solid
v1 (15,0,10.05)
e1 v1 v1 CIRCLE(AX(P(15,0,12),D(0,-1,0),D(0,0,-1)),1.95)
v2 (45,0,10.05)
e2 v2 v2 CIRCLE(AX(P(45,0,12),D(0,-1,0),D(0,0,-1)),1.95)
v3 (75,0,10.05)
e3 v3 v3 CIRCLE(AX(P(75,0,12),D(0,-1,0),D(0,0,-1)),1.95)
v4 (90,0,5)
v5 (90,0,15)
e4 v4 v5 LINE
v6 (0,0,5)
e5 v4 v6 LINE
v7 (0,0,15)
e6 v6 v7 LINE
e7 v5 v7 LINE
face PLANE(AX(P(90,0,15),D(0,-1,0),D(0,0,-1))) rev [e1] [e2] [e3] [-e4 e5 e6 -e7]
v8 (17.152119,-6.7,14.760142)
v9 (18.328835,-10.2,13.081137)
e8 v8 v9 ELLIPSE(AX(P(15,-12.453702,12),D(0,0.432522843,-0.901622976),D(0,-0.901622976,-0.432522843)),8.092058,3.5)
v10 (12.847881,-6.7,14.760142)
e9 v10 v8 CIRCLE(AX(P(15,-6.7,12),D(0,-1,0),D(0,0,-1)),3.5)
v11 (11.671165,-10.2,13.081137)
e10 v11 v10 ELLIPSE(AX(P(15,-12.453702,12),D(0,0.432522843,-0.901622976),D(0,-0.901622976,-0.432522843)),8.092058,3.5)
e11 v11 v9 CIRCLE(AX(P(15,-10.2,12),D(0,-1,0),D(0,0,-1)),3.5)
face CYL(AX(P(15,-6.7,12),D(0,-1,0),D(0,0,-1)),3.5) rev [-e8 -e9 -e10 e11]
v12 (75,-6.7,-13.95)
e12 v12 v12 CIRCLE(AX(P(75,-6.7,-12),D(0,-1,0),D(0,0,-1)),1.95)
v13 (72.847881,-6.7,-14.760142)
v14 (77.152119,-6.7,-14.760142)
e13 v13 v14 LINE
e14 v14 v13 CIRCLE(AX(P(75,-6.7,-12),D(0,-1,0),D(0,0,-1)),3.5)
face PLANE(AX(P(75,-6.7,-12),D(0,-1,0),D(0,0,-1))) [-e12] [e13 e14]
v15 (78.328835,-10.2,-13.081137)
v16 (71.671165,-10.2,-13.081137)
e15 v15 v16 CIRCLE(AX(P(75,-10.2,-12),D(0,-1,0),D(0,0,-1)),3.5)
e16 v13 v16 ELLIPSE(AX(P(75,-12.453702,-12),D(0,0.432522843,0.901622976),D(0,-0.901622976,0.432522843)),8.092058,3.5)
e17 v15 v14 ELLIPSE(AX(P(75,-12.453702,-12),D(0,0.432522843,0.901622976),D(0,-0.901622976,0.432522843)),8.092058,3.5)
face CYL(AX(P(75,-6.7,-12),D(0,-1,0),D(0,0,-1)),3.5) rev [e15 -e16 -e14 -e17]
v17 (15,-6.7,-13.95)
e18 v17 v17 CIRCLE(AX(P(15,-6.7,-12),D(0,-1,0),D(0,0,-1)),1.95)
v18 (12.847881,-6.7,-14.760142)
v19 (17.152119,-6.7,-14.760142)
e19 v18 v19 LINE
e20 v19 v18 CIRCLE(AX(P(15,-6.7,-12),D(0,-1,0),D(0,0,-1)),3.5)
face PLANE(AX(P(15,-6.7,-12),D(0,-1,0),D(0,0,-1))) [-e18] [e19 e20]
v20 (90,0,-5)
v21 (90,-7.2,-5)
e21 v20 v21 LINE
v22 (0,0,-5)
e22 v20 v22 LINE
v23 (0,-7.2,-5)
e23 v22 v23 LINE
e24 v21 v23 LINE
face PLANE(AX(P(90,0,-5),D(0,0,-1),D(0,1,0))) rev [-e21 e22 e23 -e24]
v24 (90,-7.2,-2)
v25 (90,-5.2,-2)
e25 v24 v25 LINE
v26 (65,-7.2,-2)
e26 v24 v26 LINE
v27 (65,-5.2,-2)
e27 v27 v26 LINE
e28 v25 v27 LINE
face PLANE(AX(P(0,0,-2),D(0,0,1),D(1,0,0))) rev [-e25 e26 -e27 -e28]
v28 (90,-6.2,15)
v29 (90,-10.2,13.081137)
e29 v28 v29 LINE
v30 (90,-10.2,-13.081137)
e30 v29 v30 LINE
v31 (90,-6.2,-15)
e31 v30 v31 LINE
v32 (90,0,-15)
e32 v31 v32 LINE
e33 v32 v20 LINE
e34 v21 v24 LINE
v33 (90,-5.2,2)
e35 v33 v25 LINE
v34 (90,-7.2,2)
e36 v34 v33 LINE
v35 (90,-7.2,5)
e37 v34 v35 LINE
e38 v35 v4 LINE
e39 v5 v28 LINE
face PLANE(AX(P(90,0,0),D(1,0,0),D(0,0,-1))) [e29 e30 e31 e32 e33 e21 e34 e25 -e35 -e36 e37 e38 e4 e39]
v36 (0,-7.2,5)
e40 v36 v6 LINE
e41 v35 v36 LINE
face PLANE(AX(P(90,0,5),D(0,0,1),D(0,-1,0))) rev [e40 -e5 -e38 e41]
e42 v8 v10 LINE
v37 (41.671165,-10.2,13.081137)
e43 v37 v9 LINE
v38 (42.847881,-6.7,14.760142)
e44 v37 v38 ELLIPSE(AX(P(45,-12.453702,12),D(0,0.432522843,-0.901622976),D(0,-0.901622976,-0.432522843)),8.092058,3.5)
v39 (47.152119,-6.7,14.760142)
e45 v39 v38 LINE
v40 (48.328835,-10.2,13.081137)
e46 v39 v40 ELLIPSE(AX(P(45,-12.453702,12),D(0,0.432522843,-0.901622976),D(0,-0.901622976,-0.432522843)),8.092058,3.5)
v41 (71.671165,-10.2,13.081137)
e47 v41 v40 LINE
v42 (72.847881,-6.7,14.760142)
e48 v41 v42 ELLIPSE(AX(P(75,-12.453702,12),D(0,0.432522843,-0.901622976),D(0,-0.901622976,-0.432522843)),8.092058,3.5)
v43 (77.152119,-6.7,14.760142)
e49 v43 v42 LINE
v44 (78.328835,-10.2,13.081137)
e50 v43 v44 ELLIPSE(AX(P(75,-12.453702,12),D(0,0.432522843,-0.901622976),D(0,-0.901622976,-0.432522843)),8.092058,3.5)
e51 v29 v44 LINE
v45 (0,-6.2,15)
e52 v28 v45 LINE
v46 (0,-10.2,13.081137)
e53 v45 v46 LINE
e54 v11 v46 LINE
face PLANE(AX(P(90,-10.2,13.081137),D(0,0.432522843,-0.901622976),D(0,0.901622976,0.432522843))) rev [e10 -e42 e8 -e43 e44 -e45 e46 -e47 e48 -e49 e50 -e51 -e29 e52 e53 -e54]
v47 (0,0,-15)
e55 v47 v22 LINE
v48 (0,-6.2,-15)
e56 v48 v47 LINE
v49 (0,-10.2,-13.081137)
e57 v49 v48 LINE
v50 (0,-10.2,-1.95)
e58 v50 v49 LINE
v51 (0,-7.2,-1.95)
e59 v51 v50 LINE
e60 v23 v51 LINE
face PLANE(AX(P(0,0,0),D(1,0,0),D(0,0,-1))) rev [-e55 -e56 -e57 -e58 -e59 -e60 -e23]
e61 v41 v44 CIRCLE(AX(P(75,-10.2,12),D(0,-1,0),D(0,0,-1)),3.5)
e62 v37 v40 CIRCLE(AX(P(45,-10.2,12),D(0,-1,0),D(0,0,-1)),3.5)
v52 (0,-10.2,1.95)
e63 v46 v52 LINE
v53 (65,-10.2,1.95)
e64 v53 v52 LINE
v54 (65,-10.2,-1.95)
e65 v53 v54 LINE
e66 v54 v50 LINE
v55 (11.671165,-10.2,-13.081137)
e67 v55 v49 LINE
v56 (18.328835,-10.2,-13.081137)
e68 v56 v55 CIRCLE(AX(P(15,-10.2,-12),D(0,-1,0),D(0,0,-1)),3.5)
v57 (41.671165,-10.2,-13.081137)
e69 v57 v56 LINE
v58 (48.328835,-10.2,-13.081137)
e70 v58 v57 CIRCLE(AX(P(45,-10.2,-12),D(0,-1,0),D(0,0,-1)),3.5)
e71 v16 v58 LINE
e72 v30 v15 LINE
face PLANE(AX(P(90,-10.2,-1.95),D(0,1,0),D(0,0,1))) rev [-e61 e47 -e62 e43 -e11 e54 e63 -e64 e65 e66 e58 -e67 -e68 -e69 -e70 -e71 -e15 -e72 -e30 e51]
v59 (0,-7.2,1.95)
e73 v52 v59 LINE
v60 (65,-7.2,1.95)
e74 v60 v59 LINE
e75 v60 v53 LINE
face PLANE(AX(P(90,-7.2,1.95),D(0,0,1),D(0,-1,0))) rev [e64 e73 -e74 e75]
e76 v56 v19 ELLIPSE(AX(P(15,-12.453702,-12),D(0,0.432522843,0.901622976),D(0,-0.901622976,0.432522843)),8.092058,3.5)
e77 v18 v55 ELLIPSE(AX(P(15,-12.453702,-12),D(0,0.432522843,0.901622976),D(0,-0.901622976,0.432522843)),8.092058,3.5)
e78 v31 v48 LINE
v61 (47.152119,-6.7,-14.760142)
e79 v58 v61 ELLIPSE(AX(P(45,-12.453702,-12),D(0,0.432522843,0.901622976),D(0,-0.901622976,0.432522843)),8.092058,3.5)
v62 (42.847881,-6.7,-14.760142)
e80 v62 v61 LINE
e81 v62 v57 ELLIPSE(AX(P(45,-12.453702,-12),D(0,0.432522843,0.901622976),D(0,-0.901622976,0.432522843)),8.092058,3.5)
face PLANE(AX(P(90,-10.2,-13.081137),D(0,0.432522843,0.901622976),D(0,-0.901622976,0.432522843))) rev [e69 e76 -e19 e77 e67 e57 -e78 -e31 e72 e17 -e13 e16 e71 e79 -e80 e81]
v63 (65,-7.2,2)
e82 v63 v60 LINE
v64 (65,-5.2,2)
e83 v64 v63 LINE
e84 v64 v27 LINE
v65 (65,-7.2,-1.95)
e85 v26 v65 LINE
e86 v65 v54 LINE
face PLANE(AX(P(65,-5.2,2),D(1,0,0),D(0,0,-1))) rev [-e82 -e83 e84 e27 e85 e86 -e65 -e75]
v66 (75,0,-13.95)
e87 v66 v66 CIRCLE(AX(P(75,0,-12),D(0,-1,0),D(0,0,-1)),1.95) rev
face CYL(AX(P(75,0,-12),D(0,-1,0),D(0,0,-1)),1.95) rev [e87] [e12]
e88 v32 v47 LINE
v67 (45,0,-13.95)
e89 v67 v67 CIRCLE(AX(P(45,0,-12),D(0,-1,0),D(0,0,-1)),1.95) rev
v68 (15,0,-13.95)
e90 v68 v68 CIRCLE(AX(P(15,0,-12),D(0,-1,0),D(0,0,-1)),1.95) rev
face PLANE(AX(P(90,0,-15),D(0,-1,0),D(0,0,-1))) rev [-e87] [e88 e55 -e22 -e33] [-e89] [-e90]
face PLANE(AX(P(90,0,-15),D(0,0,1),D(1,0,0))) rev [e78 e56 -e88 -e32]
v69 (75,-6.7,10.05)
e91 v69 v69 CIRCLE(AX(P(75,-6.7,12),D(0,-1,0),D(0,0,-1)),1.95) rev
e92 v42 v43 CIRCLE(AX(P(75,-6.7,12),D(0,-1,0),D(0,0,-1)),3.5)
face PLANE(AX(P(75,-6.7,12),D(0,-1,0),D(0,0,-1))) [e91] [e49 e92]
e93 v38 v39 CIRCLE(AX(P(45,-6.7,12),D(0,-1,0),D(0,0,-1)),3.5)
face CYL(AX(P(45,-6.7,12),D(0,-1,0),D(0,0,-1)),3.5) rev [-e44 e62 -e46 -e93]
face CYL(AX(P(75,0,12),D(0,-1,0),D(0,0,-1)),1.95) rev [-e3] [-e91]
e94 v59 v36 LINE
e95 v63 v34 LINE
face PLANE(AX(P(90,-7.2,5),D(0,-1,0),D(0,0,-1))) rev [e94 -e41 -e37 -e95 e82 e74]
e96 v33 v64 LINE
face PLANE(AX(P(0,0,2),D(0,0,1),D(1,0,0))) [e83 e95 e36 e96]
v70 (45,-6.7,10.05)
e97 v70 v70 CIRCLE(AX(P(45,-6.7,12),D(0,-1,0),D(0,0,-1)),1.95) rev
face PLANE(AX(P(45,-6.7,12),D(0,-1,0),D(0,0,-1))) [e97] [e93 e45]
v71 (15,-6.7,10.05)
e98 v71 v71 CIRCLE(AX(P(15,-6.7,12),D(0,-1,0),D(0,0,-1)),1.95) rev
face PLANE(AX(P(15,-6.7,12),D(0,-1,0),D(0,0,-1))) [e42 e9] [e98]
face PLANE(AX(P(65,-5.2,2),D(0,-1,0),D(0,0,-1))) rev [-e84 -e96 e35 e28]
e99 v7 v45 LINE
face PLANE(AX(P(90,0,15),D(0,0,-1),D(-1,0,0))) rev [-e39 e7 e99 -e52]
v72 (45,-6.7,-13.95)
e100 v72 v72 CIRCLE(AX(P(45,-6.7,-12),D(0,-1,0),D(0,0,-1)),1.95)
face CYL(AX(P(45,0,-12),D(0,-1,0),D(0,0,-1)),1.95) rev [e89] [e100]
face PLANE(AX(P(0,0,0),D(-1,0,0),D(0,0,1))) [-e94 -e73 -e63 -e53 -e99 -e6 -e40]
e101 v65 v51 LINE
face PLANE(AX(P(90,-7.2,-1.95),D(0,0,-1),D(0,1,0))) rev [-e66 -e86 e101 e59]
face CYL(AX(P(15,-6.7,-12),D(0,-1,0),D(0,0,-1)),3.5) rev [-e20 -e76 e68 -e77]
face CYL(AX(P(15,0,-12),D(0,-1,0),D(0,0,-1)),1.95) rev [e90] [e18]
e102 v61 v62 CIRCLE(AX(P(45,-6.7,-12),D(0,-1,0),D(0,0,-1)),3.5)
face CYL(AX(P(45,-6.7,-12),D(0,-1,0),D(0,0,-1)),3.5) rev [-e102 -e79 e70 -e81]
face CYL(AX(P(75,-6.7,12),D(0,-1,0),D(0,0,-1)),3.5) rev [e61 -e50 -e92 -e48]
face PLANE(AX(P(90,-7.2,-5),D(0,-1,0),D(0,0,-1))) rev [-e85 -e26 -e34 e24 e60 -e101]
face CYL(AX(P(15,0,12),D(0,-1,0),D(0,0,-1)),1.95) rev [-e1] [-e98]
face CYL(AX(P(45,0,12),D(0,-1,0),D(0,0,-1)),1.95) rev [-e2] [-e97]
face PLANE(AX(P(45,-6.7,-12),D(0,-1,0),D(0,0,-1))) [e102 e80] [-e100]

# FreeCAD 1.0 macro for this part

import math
import FreeCAD as App
import Part
import Sketcher

V = App.Vector
Q = App.Units.Quantity

doc = App.newDocument("Part")
body = doc.addObject("PartDesign::Body", "Body")

sketch1 = body.newObject("Sketcher::SketchObject", "Sketch")
sketch1.AttachmentSupport = (doc.getObject("YZ_Plane"), [""])
sketch1.MapMode = "FlatFace"
sketch1.addGeometry([
    Part.LineSegment(V(0, 15, 0), V(-6.2, 15, 0)),
    Part.LineSegment(V(-6.2, 15, 0), V(-10.2, 13.1, 0)),
    Part.LineSegment(V(-10.2, 13.1, 0), V(-10.2, 1.9, 0)),
    Part.LineSegment(V(-10.2, 1.9, 0), V(-7.2, 1.9, 0)),
    Part.LineSegment(V(-7.2, 1.9, 0), V(-7.2, 5, 0)),
    Part.LineSegment(V(-7.2, 5, 0), V(0, 5, 0)),
    Part.LineSegment(V(0, 5, 0), V(0, 15, 0)),
], False)
sketch1.addConstraint([
    Sketcher.Constraint("Coincident", 0, 2, 1, 1),
    Sketcher.Constraint("Coincident", 1, 2, 2, 1),
    Sketcher.Constraint("Coincident", 2, 2, 3, 1),
    Sketcher.Constraint("Coincident", 3, 2, 4, 1),
    Sketcher.Constraint("Coincident", 4, 2, 5, 1),
    Sketcher.Constraint("Coincident", 5, 2, 6, 1),
    Sketcher.Constraint("Coincident", 6, 2, 0, 1),
    Sketcher.Constraint("Horizontal", 0),
    Sketcher.Constraint("Vertical", 2),
    Sketcher.Constraint("Horizontal", 3),
    Sketcher.Constraint("Vertical", 4),
    Sketcher.Constraint("Horizontal", 5),
    Sketcher.Constraint("Vertical", 6),
    Sketcher.Constraint("PointOnObject", 5, 2, -2),
    Sketcher.Constraint("DistanceX", 3, 1, 3, 2, Q("3 mm")),
    Sketcher.Constraint("DistanceY", 6, 1, 6, 2, Q("10 mm")),
    Sketcher.Constraint("DistanceX", 0, 2, 0, 1, Q("6.2 mm")),
    Sketcher.Constraint("DistanceX", 5, 1, 5, 2, Q("7.2 mm")),
    Sketcher.Constraint("DistanceY", -1, 1, 0, 2, Q("15 mm")),
    Sketcher.Constraint("DistanceY", 4, 1, 4, 2, Q("3.05 mm")),
    Sketcher.Constraint("DistanceY", 2, 2, 2, 1, Q("11.131137 mm")),
])
pad1 = body.newObject("PartDesign::Pad", "Pad")
pad1.Profile = sketch1
pad1.Length = 90
body2 = doc.addObject("PartDesign::Body", "Body001")

sketch2 = body2.newObject("Sketcher::SketchObject", "Sketch001")
sketch2.AttachmentSupport = (doc.getObject("YZ_Plane001"), [""])
sketch2.MapMode = "FlatFace"
sketch2.addGeometry([
    Part.LineSegment(V(-10.2, -13.1, 0), V(-6.2, -15, 0)),
    Part.LineSegment(V(-6.2, -15, 0), V(0, -15, 0)),
    Part.LineSegment(V(0, -15, 0), V(0, -5, 0)),
    Part.LineSegment(V(0, -5, 0), V(-7.2, -5, 0)),
    Part.LineSegment(V(-7.2, -5, 0), V(-7.2, -1.9, 0)),
    Part.LineSegment(V(-7.2, -1.9, 0), V(-10.2, -1.9, 0)),
    Part.LineSegment(V(-10.2, -1.9, 0), V(-10.2, -13.1, 0)),
], False)
sketch2.addConstraint([
    Sketcher.Constraint("Coincident", 0, 2, 1, 1),
    Sketcher.Constraint("Coincident", 1, 2, 2, 1),
    Sketcher.Constraint("Coincident", 2, 2, 3, 1),
    Sketcher.Constraint("Coincident", 3, 2, 4, 1),
    Sketcher.Constraint("Coincident", 4, 2, 5, 1),
    Sketcher.Constraint("Coincident", 5, 2, 6, 1),
    Sketcher.Constraint("Coincident", 6, 2, 0, 1),
    Sketcher.Constraint("Horizontal", 1),
    Sketcher.Constraint("Vertical", 2),
    Sketcher.Constraint("Horizontal", 3),
    Sketcher.Constraint("Vertical", 4),
    Sketcher.Constraint("Horizontal", 5),
    Sketcher.Constraint("Vertical", 6),
    Sketcher.Constraint("PointOnObject", 1, 2, -2),
    Sketcher.Constraint("DistanceX", 5, 2, 5, 1, Q("3 mm")),
    Sketcher.Constraint("DistanceY", 2, 1, 2, 2, Q("10 mm")),
    Sketcher.Constraint("DistanceX", 1, 1, 1, 2, Q("6.2 mm")),
    Sketcher.Constraint("DistanceX", 3, 2, 3, 1, Q("7.2 mm")),
    Sketcher.Constraint("DistanceY", 0, 2, -1, 1, Q("15 mm")),
    Sketcher.Constraint("DistanceY", 4, 1, 4, 2, Q("3.05 mm")),
    Sketcher.Constraint("DistanceY", 6, 2, 6, 1, Q("11.131137 mm")),
])
pad2 = body2.newObject("PartDesign::Pad", "Pad001")
pad2.Profile = sketch2
pad2.Length = 90
body3 = doc.addObject("PartDesign::Body", "Body002")
body3.AllowCompound = True

sketch3 = body3.newObject("Sketcher::SketchObject", "Sketch002")
sketch3.AttachmentSupport = (doc.getObject("XZ_Plane002"), [""])
sketch3.MapMode = "FlatFace"
sketch3.AttachmentOffset = App.Placement(V(0, 0, 10.2), App.Rotation())
sketch3.addGeometry([
    Part.Circle(V(15, 12, 0), V(0, 0, 1), 1.9),
    Part.ArcOfCircle(Part.Circle(V(15, -12, 0), V(0, 0, 1), 1.9), math.radians(-146), math.radians(-34)),
    Part.ArcOfCircle(Part.Circle(V(15, -12, 0), V(0, 0, 1), 1.9), math.radians(-34), math.radians(0)),
    Part.ArcOfCircle(Part.Circle(V(15, -12, 0), V(0, 0, 1), 1.9), math.radians(0), math.radians(214)),
    Part.ArcOfCircle(Part.Circle(V(45, -12, 0), V(0, 0, 1), 1.9), math.radians(-146), math.radians(-34)),
    Part.ArcOfCircle(Part.Circle(V(45, -12, 0), V(0, 0, 1), 1.9), math.radians(-34), math.radians(0)),
    Part.ArcOfCircle(Part.Circle(V(45, -12, 0), V(0, 0, 1), 1.9), math.radians(0), math.radians(214)),
    Part.ArcOfCircle(Part.Circle(V(75, -12, 0), V(0, 0, 1), 1.9), math.radians(-146), math.radians(-34)),
    Part.ArcOfCircle(Part.Circle(V(75, -12, 0), V(0, 0, 1), 1.9), math.radians(-34), math.radians(0)),
    Part.ArcOfCircle(Part.Circle(V(75, -12, 0), V(0, 0, 1), 1.9), math.radians(0), math.radians(214)),
    Part.Circle(V(110, -12, 0), V(0, 0, 1), 1.9),
    Part.Circle(V(110, 12, 0), V(0, 0, 1), 1.9),
    Part.Circle(V(75, 12, 0), V(0, 0, 1), 1.9),
    Part.Circle(V(45, 12, 0), V(0, 0, 1), 1.9),
], False)
sketch3.addConstraint([
    Sketcher.Constraint("Tangent", 1, 2, 2, 1),
    Sketcher.Constraint("Tangent", 2, 2, 3, 1),
    Sketcher.Constraint("Tangent", 3, 2, 1, 1),
    Sketcher.Constraint("Tangent", 4, 2, 5, 1),
    Sketcher.Constraint("Tangent", 5, 2, 6, 1),
    Sketcher.Constraint("Tangent", 6, 2, 4, 1),
    Sketcher.Constraint("Tangent", 7, 2, 8, 1),
    Sketcher.Constraint("Tangent", 8, 2, 9, 1),
    Sketcher.Constraint("Tangent", 9, 2, 7, 1),
    Sketcher.Constraint("Equal", 0, 1),
    Sketcher.Constraint("Equal", 3, 4),
    Sketcher.Constraint("Equal", 6, 7),
    Sketcher.Constraint("Equal", 9, 10),
    Sketcher.Constraint("Equal", 10, 11),
    Sketcher.Constraint("Equal", 11, 12),
    Sketcher.Constraint("Equal", 12, 13),
    Sketcher.Constraint("Symmetric", 0, 3, 1, 3, -1),
    Sketcher.Constraint("Symmetric", 10, 3, 11, 3, -1),
    Sketcher.Constraint("Symmetric", 7, 3, 12, 3, -1),
    Sketcher.Constraint("Symmetric", 4, 3, 13, 3, -1),
    Sketcher.Constraint("Horizontal", 3, 3, 4, 3),
    Sketcher.Constraint("Horizontal", 6, 3, 7, 3),
    Sketcher.Constraint("Horizontal", 9, 3, 10, 3),
    Sketcher.Constraint("Horizontal", 10, 3, 2, 2),
    Sketcher.Constraint("Horizontal", 1, 2, 3, 2),
    Sketcher.Constraint("Horizontal", 3, 2, 4, 2),
    Sketcher.Constraint("Horizontal", 2, 2, 5, 2),
    Sketcher.Constraint("Horizontal", 4, 2, 6, 2),
    Sketcher.Constraint("Horizontal", 6, 2, 7, 2),
    Sketcher.Constraint("Horizontal", 5, 2, 8, 2),
    Sketcher.Constraint("Horizontal", 7, 2, 9, 2),
    Sketcher.Constraint("Diameter", 0, Q("3.9 mm")),
    Sketcher.Constraint("DistanceX", -1, 1, 0, 3, Q("15 mm")),
    Sketcher.Constraint("DistanceY", -1, 1, 0, 3, Q("12 mm")),
    Sketcher.Constraint("DistanceX", -1, 1, 4, 3, Q("45 mm")),
    Sketcher.Constraint("DistanceX", -1, 1, 7, 3, Q("75 mm")),
    Sketcher.Constraint("DistanceX", -1, 1, 10, 3, Q("110 mm")),
    Sketcher.Constraint("DistanceX", 3, 2, 1, 2, Q("3.245701 mm")),
])
pad3 = body3.newObject("PartDesign::Pad", "Pad002")
pad3.Profile = sketch3
pad3.Length = 92.809803
pad3.Reversed = True
doc.recompute()

body4 = doc.addObject("PartDesign::Body", "Body003")
body4.BaseFeature = body3
boolean = body.newObject("PartDesign::Boolean", "Boolean")
boolean.Type = "Cut"
boolean.addObjects([body4])
doc.recompute()

boolean2 = body2.newObject("PartDesign::Boolean", "Boolean001")
boolean2.Type = "Cut"
boolean2.addObjects([body3])
body.AllowCompound = True
doc.recompute()

boolean3 = body.newObject("PartDesign::Boolean", "Boolean002")
boolean3.Type = "Fuse"
boolean3.addObjects([body2])

sketch4 = body.newObject("Sketcher::SketchObject", "Sketch003")
sketch4.AttachmentSupport = (doc.getObject("XY_Plane"), [""])
sketch4.MapMode = "FlatFace"
sketch4.addGeometry([
    Part.LineSegment(V(65, -5.2, 0), V(65, -10.2, 0)),
    Part.LineSegment(V(65, -10.2, 0), V(90, -10.2, 0)),
    Part.LineSegment(V(90, -10.2, 0), V(90, -5.2, 0)),
    Part.LineSegment(V(90, -5.2, 0), V(65, -5.2, 0)),
], False)
sketch4.addConstraint([
    Sketcher.Constraint("Coincident", 0, 2, 1, 1),
    Sketcher.Constraint("Coincident", 1, 2, 2, 1),
    Sketcher.Constraint("Coincident", 2, 2, 3, 1),
    Sketcher.Constraint("Coincident", 3, 2, 0, 1),
    Sketcher.Constraint("Vertical", 0),
    Sketcher.Constraint("Horizontal", 1),
    Sketcher.Constraint("Vertical", 2),
    Sketcher.Constraint("Horizontal", 3),
    Sketcher.Constraint("DistanceX", 1, 1, 1, 2, Q("25 mm")),
    Sketcher.Constraint("DistanceY", 0, 2, 0, 1, Q("5 mm")),
    Sketcher.Constraint("DistanceX", -1, 1, 0, 2, Q("65 mm")),
    Sketcher.Constraint("DistanceY", 0, 2, -1, 1, Q("10.2 mm")),
])
pad4 = body.newObject("PartDesign::Pad", "Pad003")
pad4.Profile = sketch4
pad4.Length = 4
pad4.Midplane = True

sketch5 = body.newObject("Sketcher::SketchObject", "Sketch004")
sketch5.AttachmentSupport = (doc.getObject("XZ_Plane"), [""])
sketch5.MapMode = "FlatFace"
sketch5.AttachmentOffset = App.Placement(V(0, 0, 10.2), App.Rotation())
sketch5.addGeometry([
    Part.Circle(V(15, 12, 0), V(0, 0, 1), 3.5),
    Part.Circle(V(15, -12, 0), V(0, 0, 1), 3.5),
    Part.Circle(V(45, 12, 0), V(0, 0, 1), 3.5),
    Part.Circle(V(75, 12, 0), V(0, 0, 1), 3.5),
    Part.Circle(V(75, -12, 0), V(0, 0, 1), 3.5),
    Part.Circle(V(45, -12, 0), V(0, 0, 1), 3.5),
], False)
sketch5.addConstraint([
    Sketcher.Constraint("Equal", 0, 1),
    Sketcher.Constraint("Equal", 1, 2),
    Sketcher.Constraint("Equal", 2, 3),
    Sketcher.Constraint("Equal", 3, 4),
    Sketcher.Constraint("Equal", 4, 5),
    Sketcher.Constraint("Symmetric", 0, 3, 1, 3, -1),
    Sketcher.Constraint("Symmetric", 3, 3, 4, 3, -1),
    Sketcher.Constraint("Symmetric", 2, 3, 5, 3, -1),
    Sketcher.Constraint("Horizontal", 0, 3, 2, 3),
    Sketcher.Constraint("Horizontal", 2, 3, 3, 3),
    Sketcher.Constraint("Diameter", 0, Q("7 mm")),
    Sketcher.Constraint("DistanceX", -1, 1, 0, 3, Q("15 mm")),
    Sketcher.Constraint("DistanceY", -1, 1, 0, 3, Q("12 mm")),
    Sketcher.Constraint("DistanceX", -1, 1, 2, 3, Q("45 mm")),
    Sketcher.Constraint("DistanceX", -1, 1, 3, 3, Q("75 mm")),
])
pocket1 = body.newObject("PartDesign::Pocket", "Pocket")
pocket1.Profile = sketch5
pocket1.Length = 3.5

doc.recompute()
